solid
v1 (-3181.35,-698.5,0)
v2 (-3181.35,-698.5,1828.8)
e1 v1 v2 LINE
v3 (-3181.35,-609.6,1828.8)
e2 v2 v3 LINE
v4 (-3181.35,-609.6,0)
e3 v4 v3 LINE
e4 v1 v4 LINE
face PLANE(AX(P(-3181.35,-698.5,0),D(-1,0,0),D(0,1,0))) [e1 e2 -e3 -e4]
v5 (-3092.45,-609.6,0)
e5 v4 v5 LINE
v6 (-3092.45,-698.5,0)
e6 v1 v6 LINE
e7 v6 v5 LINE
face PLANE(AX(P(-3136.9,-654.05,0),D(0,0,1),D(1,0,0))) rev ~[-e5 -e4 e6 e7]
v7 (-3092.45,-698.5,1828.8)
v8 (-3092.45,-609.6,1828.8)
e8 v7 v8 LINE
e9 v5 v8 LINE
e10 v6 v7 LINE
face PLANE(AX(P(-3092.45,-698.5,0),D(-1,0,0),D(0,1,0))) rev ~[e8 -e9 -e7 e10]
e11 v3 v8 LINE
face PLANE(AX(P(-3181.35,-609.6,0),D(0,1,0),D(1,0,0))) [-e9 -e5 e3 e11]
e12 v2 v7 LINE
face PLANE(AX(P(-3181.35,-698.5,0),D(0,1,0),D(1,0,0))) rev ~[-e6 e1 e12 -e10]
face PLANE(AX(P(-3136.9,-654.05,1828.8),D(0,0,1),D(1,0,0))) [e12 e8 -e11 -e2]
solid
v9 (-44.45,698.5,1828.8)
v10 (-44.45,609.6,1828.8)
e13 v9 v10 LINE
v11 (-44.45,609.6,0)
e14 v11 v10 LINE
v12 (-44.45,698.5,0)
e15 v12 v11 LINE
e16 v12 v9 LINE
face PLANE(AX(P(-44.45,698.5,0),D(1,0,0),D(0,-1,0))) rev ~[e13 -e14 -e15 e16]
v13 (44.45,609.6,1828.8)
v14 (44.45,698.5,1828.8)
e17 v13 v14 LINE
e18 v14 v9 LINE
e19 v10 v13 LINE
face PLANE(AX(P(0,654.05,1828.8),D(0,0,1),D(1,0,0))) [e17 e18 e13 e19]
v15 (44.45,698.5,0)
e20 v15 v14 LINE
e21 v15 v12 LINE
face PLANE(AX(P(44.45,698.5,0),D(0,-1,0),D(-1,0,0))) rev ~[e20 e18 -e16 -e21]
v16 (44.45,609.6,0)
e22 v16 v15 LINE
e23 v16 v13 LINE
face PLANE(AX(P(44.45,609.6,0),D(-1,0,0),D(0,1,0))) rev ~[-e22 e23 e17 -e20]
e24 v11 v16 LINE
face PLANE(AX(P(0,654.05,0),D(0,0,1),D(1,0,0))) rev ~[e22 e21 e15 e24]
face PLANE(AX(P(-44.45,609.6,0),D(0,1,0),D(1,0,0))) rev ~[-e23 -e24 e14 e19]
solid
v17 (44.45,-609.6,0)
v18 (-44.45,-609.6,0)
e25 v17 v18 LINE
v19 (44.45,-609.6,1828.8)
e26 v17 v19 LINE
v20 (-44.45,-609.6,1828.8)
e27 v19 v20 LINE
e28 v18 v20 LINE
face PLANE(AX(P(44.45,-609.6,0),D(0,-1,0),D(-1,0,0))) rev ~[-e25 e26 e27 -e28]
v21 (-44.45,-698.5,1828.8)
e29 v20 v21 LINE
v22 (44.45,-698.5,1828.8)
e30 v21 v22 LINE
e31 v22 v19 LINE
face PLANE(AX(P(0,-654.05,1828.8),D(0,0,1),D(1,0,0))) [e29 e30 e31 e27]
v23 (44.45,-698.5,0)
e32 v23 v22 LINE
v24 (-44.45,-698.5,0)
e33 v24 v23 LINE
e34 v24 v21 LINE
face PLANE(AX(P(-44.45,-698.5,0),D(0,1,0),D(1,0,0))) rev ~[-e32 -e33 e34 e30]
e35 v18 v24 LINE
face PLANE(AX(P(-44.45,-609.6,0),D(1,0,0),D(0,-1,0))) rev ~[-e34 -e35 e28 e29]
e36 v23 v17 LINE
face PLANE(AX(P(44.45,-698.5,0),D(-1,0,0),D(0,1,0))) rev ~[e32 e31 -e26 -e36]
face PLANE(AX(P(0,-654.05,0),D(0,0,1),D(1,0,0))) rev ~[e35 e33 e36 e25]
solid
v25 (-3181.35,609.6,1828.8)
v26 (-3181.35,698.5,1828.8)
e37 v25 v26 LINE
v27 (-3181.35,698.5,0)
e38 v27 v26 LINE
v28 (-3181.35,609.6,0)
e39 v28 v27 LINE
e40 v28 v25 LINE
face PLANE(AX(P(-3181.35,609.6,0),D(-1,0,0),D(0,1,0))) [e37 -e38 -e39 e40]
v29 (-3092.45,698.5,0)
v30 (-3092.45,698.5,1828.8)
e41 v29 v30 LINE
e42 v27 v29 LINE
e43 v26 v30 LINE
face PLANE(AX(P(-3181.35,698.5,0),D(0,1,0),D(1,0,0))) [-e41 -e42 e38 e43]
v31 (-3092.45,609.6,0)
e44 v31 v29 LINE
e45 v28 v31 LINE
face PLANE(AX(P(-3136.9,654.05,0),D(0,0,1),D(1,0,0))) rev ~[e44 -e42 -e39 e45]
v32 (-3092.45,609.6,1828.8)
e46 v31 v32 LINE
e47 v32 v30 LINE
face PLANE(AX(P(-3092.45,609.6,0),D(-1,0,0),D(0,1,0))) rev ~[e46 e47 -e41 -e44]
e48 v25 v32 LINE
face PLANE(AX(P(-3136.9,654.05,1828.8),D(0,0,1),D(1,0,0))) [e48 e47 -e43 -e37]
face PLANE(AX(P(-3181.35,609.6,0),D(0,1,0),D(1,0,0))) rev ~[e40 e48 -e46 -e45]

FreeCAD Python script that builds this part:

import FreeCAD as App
import Part
import Sketcher

V = App.Vector
Q = App.Units.Quantity


def add_polygon(sketch, points):
    """Adds a closed chain of lines whose ends are joined by coincident constraints."""
    first, n = sketch.GeometryCount, len(points)
    for a, b in zip(points, points[1:] + points[:1]):
        sketch.addGeometry(Part.LineSegment(App.Vector(*a, 0), App.Vector(*b, 0)), False)
    for i in range(n):
        sketch.addConstraint(Sketcher.Constraint("Coincident", first + i, 2, first + (i + 1) % n, 1))

doc = App.newDocument("Part")
body = doc.addObject("PartDesign::Body", "Body")
body.AllowCompound = True

# Sketch on XY plane
sketch1 = doc.addObject("Sketcher::SketchObject", "Sketch")
body.addObject(sketch1)
sketch1.AttachmentSupport = (doc.XY_Plane, [""])
sketch1.MapMode = "FlatFace"
add_polygon(sketch1, [(44.45, 609.6), (44.45, 698.5), (-44.45, 698.5), (-44.45, 609.6)])  # lines 0-3
add_polygon(sketch1, [(44.45, -609.6), (-44.45, -609.6), (-44.45, -698.5), (44.45, -698.5)])  # lines 4-7
add_polygon(sketch1, [(-3181.35, 698.5), (-3181.35, 609.6), (-3092.45, 609.6), (-3092.45, 698.5)])  # lines 8-11
add_polygon(sketch1, [(-3181.35, -609.6), (-3181.35, -698.5), (-3092.45, -698.5), (-3092.45, -609.6)])  # lines 12-15
sketch1.addConstraint(Sketcher.Constraint("Vertical", 0))
sketch1.addConstraint(Sketcher.Constraint("Horizontal", 1))
sketch1.addConstraint(Sketcher.Constraint("Vertical", 2))
sketch1.addConstraint(Sketcher.Constraint("Horizontal", 3))
sketch1.addConstraint(Sketcher.Constraint("Horizontal", 4))
sketch1.addConstraint(Sketcher.Constraint("Vertical", 5))
sketch1.addConstraint(Sketcher.Constraint("Horizontal", 6))
sketch1.addConstraint(Sketcher.Constraint("Vertical", 7))
sketch1.addConstraint(Sketcher.Constraint("Vertical", 8))
sketch1.addConstraint(Sketcher.Constraint("Horizontal", 9))
sketch1.addConstraint(Sketcher.Constraint("Vertical", 10))
sketch1.addConstraint(Sketcher.Constraint("Horizontal", 11))
sketch1.addConstraint(Sketcher.Constraint("Vertical", 12))
sketch1.addConstraint(Sketcher.Constraint("Horizontal", 13))
sketch1.addConstraint(Sketcher.Constraint("Vertical", 14))
sketch1.addConstraint(Sketcher.Constraint("Horizontal", 15))
sketch1.addConstraint(Sketcher.Constraint("Symmetric", 3, 2, 4, 2, -1, 1))
sketch1.addConstraint(Sketcher.Constraint("Symmetric", 1, 2, 6, 2, -1, 1))
sketch1.addConstraint(Sketcher.Constraint("Symmetric", 11, 2, 12, 2, -1))
sketch1.addConstraint(Sketcher.Constraint("Symmetric", 9, 2, 14, 2, -1))
sketch1.addConstraint(Sketcher.Constraint("Horizontal", 3, 2, 8, 2))
sketch1.addConstraint(Sketcher.Constraint("Horizontal", 1, 2, 10, 2))
sketch1.addConstraint(Sketcher.Constraint("Vertical", 2, 2, 4, 2))
sketch1.addConstraint(Sketcher.Constraint("Equal", 6, 9))
sketch1.addConstraint(Sketcher.Constraint("Equal", 15, 0))
sketch1.addConstraint(Sketcher.Constraint("DistanceX", 1, 2, 1, 1, Q("3.5 in")))
sketch1.addConstraint(Sketcher.Constraint("DistanceY", -1, 1, 2, 2, Q("24 in")))
sketch1.addConstraint(Sketcher.Constraint("DistanceX", 8, 2, 3, 2, Q("127 in")))
pad1 = doc.addObject("PartDesign::Pad", "Pad")
body.addObject(pad1)
pad1.Profile = sketch1
pad1.Length = Q("72 in")

doc.recompute()
